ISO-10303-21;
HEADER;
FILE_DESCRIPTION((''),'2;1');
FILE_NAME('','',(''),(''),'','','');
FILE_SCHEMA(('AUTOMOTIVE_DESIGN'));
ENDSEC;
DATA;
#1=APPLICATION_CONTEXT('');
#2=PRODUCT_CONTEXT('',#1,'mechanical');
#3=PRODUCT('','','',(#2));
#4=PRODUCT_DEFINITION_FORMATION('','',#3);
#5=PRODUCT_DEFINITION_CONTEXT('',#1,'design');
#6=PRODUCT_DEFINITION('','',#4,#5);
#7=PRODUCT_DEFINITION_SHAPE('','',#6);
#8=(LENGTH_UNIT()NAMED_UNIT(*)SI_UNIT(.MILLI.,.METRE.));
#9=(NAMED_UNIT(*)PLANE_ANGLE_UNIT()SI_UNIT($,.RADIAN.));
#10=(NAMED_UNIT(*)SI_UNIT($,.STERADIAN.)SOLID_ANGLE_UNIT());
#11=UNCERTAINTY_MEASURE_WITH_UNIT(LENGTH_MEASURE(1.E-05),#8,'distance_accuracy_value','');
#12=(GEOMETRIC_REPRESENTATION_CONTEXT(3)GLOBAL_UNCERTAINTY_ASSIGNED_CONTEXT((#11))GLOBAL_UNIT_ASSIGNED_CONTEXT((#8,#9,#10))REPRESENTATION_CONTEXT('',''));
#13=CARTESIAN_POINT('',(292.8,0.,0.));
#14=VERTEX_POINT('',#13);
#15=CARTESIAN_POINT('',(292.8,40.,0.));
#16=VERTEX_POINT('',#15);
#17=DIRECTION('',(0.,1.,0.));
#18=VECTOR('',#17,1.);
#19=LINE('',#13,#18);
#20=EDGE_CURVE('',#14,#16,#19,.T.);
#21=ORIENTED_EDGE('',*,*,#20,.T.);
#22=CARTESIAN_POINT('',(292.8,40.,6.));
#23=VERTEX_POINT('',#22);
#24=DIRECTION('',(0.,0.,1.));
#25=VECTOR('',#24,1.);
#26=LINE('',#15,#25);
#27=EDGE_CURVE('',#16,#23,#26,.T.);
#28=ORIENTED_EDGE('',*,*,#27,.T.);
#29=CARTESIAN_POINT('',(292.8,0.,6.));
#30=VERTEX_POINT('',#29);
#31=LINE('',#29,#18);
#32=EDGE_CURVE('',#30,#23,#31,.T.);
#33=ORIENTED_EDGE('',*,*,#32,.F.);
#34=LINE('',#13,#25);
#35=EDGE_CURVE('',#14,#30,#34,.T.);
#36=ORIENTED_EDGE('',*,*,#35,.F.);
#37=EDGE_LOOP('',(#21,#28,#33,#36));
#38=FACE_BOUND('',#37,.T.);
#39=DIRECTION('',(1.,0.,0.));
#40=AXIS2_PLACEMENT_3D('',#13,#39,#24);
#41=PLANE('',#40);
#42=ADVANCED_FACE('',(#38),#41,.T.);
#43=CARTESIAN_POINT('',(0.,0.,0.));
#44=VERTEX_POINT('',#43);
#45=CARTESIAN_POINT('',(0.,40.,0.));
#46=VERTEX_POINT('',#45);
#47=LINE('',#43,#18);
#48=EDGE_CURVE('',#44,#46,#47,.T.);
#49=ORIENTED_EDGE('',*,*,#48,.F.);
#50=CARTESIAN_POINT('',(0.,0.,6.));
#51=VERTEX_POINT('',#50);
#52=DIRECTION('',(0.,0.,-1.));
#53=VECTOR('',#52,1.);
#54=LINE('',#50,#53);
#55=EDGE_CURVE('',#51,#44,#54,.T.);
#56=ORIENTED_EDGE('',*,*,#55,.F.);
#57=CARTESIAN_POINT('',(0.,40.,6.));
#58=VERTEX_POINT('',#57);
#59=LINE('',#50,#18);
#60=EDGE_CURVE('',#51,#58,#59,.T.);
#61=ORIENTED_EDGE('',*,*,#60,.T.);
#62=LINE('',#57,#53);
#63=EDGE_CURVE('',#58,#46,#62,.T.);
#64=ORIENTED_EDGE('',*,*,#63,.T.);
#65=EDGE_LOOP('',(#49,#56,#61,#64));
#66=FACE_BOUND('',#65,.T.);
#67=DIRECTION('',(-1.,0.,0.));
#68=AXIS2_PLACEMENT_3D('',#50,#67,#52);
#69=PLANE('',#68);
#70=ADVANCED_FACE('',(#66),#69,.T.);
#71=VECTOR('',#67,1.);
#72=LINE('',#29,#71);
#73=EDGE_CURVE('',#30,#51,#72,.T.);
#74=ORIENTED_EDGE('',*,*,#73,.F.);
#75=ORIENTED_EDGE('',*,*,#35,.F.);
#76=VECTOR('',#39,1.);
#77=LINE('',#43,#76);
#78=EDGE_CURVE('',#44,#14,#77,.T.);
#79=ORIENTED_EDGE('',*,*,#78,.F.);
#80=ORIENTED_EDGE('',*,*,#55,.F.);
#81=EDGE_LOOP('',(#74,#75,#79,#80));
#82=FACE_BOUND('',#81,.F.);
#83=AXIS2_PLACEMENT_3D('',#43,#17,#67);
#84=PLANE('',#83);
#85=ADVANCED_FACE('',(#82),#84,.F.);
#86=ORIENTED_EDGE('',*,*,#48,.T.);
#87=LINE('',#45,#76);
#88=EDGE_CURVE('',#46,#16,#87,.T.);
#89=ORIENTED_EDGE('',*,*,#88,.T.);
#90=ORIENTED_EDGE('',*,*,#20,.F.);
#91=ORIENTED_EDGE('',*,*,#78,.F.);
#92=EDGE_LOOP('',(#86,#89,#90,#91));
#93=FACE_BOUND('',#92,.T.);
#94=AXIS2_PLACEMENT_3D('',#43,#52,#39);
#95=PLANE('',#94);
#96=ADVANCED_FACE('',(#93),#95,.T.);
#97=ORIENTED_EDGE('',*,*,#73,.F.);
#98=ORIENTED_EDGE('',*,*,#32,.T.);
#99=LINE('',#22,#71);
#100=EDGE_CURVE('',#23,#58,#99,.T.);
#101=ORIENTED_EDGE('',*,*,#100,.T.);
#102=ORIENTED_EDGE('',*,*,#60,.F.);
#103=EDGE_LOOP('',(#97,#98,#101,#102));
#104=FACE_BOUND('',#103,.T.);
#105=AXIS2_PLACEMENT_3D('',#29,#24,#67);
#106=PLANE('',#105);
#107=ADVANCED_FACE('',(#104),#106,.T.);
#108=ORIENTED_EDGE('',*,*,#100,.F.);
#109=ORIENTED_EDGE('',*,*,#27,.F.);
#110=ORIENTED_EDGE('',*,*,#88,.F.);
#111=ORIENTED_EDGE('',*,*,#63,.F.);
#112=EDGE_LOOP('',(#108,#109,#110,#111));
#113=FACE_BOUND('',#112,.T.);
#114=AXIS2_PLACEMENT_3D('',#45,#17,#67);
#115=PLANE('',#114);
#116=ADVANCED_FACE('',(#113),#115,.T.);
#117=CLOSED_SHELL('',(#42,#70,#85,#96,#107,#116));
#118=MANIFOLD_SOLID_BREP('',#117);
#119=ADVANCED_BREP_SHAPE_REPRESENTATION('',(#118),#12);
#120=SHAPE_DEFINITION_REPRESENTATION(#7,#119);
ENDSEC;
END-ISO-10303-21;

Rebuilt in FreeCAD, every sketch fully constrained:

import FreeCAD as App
import Part
import Sketcher
Q = App.Units.Quantity

doc = App.newDocument("Part")
body = doc.addObject("PartDesign::Body", "Body")

sketch1 = doc.addObject("Sketcher::SketchObject", "Sketch")
body.addObject(sketch1)
sketch1.AttachmentSupport = (doc.XZ_Plane, [""])
sketch1.MapMode = "FlatFace"
sketch1.addGeometry(Part.LineSegment(App.Vector(292.8, 0, 0), App.Vector(0, 0, 0)), False)
sketch1.addGeometry(Part.LineSegment(App.Vector(0, 0, 0), App.Vector(0, 6, 0)), False)
sketch1.addGeometry(Part.LineSegment(App.Vector(0, 6, 0), App.Vector(292.8, 6, 0)), False)
sketch1.addGeometry(Part.LineSegment(App.Vector(292.8, 6, 0), App.Vector(292.8, 0, 0)), False)
sketch1.addConstraint(Sketcher.Constraint("Coincident", 0, 2, 1, 1))
sketch1.addConstraint(Sketcher.Constraint("Coincident", 1, 2, 2, 1))
sketch1.addConstraint(Sketcher.Constraint("Coincident", 2, 2, 3, 1))
sketch1.addConstraint(Sketcher.Constraint("Coincident", 3, 2, 0, 1))
sketch1.addConstraint(Sketcher.Constraint("Horizontal", 0))
sketch1.addConstraint(Sketcher.Constraint("Vertical", 1))
sketch1.addConstraint(Sketcher.Constraint("Horizontal", 2))
sketch1.addConstraint(Sketcher.Constraint("Vertical", 3))
sketch1.addConstraint(Sketcher.Constraint("Coincident", 0, 2, -1, 1))
sketch1.addConstraint(Sketcher.Constraint("DistanceY", 1, 1, 1, 2, Q("6 mm")))
sketch1.addConstraint(Sketcher.Constraint("DistanceX", 0, 2, 0, 1, Q("292.8 mm")))
pad1 = doc.addObject("PartDesign::Pad", "Pad")
body.addObject(pad1)
pad1.Profile = sketch1
pad1.Length = 40
pad1.Reversed = True

doc.recompute()
